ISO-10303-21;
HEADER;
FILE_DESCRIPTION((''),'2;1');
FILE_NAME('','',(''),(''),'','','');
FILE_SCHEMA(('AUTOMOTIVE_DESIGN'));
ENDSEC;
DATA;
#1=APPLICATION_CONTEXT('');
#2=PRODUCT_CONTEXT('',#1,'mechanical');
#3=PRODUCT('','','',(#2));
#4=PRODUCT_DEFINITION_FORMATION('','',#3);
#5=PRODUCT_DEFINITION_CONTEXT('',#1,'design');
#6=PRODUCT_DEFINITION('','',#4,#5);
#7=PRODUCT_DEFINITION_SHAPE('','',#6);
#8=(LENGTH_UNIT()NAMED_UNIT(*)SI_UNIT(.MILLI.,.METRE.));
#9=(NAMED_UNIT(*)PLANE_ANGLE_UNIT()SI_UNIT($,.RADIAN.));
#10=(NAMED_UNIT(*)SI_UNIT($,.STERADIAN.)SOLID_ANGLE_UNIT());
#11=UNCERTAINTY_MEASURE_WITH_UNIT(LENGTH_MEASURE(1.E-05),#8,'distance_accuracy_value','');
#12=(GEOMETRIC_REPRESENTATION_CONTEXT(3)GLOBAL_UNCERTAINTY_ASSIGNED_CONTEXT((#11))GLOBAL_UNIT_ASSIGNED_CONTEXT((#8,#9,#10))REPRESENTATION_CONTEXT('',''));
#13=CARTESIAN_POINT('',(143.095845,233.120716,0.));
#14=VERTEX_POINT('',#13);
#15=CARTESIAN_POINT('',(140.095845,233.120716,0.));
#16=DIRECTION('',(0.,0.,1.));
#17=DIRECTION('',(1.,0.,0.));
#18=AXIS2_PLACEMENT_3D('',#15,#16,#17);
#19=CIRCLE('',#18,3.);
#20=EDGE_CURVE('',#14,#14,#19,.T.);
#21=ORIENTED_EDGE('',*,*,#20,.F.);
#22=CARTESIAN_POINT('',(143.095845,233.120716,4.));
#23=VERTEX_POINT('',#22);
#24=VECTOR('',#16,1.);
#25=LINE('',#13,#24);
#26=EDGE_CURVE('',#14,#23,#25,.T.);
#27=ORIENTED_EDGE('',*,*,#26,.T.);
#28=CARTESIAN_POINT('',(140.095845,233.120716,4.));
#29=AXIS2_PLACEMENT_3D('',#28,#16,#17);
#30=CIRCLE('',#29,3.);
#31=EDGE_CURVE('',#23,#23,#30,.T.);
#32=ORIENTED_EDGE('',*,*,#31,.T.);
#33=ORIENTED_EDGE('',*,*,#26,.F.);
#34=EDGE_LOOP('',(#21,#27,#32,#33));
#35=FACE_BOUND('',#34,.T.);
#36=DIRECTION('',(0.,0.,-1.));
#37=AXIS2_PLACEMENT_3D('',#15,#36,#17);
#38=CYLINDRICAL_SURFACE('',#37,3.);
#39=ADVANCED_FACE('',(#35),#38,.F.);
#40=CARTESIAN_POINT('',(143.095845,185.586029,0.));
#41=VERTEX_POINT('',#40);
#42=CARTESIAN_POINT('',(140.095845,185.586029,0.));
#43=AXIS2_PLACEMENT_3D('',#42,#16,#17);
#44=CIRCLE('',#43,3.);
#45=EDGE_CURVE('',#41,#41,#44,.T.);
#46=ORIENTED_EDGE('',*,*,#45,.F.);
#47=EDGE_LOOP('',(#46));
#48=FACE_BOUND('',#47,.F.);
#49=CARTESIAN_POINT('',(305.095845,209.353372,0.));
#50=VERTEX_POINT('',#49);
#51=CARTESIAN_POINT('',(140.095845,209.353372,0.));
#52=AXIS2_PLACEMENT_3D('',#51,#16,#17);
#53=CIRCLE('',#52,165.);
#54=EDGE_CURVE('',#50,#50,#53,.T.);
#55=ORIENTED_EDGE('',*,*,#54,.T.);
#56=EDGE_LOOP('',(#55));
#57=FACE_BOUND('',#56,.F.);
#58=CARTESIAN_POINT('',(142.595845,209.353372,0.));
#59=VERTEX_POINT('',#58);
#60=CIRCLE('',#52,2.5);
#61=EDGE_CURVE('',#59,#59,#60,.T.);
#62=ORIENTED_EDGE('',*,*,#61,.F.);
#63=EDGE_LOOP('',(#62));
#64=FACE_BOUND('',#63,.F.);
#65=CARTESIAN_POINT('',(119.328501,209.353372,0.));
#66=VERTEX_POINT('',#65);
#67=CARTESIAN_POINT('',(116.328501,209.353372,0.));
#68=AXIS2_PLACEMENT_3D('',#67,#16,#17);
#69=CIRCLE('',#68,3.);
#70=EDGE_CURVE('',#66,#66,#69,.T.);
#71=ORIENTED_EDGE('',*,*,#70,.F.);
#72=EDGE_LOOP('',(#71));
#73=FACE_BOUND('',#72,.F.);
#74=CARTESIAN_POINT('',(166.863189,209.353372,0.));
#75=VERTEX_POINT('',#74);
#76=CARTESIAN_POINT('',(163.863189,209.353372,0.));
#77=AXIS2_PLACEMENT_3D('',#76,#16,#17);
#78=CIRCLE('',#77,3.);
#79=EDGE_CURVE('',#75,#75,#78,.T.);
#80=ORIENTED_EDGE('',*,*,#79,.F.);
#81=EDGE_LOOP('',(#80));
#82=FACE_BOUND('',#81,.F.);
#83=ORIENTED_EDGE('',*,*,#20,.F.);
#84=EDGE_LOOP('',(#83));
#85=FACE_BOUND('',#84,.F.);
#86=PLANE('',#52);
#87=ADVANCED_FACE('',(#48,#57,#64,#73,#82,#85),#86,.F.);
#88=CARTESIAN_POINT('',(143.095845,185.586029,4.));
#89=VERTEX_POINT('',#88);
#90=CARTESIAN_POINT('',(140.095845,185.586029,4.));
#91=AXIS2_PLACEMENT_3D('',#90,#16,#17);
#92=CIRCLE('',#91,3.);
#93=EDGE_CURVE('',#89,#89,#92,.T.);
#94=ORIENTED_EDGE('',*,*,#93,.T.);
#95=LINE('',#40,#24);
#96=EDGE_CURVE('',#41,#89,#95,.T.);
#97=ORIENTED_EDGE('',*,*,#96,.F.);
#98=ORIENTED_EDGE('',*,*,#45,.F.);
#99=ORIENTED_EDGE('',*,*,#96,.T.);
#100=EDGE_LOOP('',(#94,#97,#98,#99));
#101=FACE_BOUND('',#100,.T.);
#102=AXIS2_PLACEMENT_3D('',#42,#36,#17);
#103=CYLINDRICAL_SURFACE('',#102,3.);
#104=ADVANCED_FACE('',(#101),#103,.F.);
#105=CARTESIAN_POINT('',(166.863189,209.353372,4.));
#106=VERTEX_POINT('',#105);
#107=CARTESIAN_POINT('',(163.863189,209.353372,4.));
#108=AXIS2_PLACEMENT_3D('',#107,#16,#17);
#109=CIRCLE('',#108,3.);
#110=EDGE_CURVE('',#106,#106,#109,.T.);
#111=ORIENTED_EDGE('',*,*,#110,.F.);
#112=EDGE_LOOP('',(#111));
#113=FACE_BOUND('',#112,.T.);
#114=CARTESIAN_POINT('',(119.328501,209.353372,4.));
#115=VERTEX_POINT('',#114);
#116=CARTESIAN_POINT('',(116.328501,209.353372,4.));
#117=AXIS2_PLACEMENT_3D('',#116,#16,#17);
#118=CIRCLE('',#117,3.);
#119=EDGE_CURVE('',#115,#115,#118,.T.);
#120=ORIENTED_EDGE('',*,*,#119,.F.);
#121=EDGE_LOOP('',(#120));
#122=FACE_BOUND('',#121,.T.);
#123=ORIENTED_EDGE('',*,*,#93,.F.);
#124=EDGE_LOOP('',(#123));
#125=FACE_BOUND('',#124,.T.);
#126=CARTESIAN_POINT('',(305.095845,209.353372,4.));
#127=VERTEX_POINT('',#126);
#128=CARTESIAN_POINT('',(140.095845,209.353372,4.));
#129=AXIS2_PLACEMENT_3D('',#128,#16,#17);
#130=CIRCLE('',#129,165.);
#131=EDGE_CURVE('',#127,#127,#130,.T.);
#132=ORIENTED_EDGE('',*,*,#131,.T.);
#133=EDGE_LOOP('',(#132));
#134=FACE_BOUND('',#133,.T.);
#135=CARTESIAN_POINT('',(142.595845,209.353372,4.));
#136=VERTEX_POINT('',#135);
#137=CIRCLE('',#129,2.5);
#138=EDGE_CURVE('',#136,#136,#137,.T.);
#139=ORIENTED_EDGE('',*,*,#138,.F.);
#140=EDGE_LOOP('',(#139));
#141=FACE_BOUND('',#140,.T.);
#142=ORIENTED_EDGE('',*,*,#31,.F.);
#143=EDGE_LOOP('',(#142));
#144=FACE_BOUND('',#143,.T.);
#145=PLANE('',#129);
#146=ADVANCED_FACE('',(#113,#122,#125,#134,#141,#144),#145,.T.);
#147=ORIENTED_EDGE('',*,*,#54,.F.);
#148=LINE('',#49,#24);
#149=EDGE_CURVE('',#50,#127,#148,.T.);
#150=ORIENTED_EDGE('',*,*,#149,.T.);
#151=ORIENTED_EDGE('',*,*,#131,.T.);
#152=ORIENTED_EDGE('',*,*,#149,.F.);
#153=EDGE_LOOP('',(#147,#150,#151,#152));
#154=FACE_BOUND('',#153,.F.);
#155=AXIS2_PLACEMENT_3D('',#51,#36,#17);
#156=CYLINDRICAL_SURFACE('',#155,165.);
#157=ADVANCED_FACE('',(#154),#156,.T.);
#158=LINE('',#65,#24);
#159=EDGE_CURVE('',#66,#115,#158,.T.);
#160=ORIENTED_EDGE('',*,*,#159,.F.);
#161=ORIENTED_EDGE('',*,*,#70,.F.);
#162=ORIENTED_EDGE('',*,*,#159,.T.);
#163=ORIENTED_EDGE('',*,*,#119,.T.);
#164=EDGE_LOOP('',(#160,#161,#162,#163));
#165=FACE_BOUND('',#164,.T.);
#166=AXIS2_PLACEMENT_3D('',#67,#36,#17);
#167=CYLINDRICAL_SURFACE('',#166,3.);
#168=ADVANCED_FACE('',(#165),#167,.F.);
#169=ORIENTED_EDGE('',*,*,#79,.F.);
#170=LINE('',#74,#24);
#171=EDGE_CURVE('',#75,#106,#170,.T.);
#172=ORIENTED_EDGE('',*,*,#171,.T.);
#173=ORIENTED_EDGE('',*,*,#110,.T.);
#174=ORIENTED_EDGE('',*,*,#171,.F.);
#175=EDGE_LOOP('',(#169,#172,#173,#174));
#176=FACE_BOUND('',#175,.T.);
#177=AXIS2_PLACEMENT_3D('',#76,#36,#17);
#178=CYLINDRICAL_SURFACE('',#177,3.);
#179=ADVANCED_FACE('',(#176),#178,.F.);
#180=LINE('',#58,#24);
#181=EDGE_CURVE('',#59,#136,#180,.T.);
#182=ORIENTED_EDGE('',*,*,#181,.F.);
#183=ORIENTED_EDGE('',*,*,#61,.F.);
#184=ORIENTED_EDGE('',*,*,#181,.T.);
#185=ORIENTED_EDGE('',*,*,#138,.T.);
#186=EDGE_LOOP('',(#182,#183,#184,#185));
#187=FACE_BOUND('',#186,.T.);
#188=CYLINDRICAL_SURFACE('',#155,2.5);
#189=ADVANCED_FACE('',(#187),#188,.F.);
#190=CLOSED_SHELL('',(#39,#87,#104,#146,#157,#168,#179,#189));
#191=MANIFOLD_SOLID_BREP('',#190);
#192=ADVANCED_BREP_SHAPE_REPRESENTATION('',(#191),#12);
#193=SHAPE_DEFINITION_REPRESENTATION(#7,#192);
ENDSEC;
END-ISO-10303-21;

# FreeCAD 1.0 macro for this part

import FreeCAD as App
import Part
import Sketcher
from FreeCAD import Vector

doc = App.newDocument("Part")
body = doc.addObject("PartDesign::Body", "Body")

sketch1 = body.newObject("Sketcher::SketchObject", "Sketch")
sketch1.AttachmentSupport = (doc.getObject("XY_Plane"), [""])
sketch1.MapMode = "FlatFace"
sketch1.addGeometry([
    Part.Circle(Vector(140.095845, 209.353372, 0), Vector(0, 0, 1), 165),
    Part.Circle(Vector(140.095845, 185.586029, 0), Vector(0, 0, 1), 3),
    Part.Circle(Vector(116.328501, 209.353372, 0), Vector(0, 0, 1), 3),
    Part.Circle(Vector(140.095845, 209.353372, 0), Vector(0, 0, 1), 2.5),
    Part.Circle(Vector(163.863189, 209.353372, 0), Vector(0, 0, 1), 3),
    Part.Circle(Vector(140.095845, 233.120716, 0), Vector(0, 0, 1), 3),
], False)
sketch1.addConstraint([
    Sketcher.Constraint("Coincident", 3, 3, 0, 3),
    Sketcher.Constraint("Equal", 1, 2),
    Sketcher.Constraint("Equal", 2, 4),
    Sketcher.Constraint("Equal", 4, 5),
    Sketcher.Constraint("Horizontal", 0, 3, 2, 3),
    Sketcher.Constraint("Horizontal", 3, 3, 4, 3),
    Sketcher.Constraint("Vertical", 0, 3, 1, 3),
    Sketcher.Constraint("Vertical", 3, 3, 5, 3),
    Sketcher.Constraint("Diameter", 0, 330.0),
    Sketcher.Constraint("Diameter", 1, 6.0),
    Sketcher.Constraint("Diameter", 3, 5.0),
    Sketcher.Constraint("DistanceX", -1, 1, 2, 3, 116.328501),
    Sketcher.Constraint("DistanceY", -1, 1, 0, 3, 209.353372),
    Sketcher.Constraint("DistanceY", -1, 1, 1, 3, 185.586029),
    Sketcher.Constraint("DistanceX", -1, 1, 4, 3, 163.863189),
    Sketcher.Constraint("DistanceX", -1, 1, 0, 3, 140.095845),
    Sketcher.Constraint("DistanceY", -1, 1, 5, 3, 233.120716),
])
pad1 = body.newObject("PartDesign::Pad", "Pad")
pad1.Profile = sketch1
pad1.Length = 4

doc.recompute()
